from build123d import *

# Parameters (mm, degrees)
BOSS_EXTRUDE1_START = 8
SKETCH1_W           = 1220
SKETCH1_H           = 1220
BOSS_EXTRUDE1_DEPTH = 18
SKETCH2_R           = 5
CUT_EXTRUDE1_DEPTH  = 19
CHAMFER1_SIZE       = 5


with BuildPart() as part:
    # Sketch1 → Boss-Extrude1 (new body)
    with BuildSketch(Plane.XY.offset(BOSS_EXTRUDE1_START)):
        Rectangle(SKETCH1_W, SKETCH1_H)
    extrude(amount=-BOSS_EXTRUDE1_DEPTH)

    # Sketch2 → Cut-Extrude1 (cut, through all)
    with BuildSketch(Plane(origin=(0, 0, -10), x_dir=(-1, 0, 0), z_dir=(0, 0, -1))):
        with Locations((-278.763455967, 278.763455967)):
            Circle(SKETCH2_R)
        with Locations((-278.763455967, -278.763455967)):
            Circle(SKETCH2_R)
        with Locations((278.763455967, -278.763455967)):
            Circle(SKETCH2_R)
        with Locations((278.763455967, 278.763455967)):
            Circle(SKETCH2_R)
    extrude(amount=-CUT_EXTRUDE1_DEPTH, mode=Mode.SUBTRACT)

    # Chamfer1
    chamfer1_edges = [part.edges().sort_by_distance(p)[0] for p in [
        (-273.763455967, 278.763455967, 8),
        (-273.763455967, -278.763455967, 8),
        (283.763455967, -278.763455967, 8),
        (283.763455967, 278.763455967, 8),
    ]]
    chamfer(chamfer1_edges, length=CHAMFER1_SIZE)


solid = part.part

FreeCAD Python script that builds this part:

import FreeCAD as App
import Part
import Sketcher

V = App.Vector


def edges_at(feature, points):
    """Names of the edges that pass closest to the given points."""
    edges = feature.Shape.Edges
    near = lambda p: min(range(len(edges)), key=lambda i: edges[i].distToShape(Part.Vertex(*p))[0])
    return sorted({f"Edge{near(p) + 1}" for p in points})

doc = App.newDocument("Part")
body = doc.addObject("PartDesign::Body", "Body")

sketch1 = body.newObject("Sketcher::SketchObject", "Sketch")
sketch1.AttachmentSupport = (doc.getObject("XY_Plane"), [""])
sketch1.MapMode = "FlatFace"
sketch1.AttachmentOffset = App.Placement(V(0, 0, 8), App.Rotation())
sketch1.addGeometry([
    Part.LineSegment(V(-610, 610, 0), V(-610, -610, 0)),
    Part.LineSegment(V(-610, -610, 0), V(610, -610, 0)),
    Part.LineSegment(V(610, -610, 0), V(610, 610, 0)),
    Part.LineSegment(V(610, 610, 0), V(-610, 610, 0)),
], False)
sketch1.addConstraint([
    Sketcher.Constraint("Coincident", 0, 2, 1, 1),
    Sketcher.Constraint("Coincident", 1, 2, 2, 1),
    Sketcher.Constraint("Coincident", 2, 2, 3, 1),
    Sketcher.Constraint("Coincident", 3, 2, 0, 1),
    Sketcher.Constraint("Vertical", 0),
    Sketcher.Constraint("Horizontal", 1),
    Sketcher.Constraint("Vertical", 2),
    Sketcher.Constraint("Horizontal", 3),
    Sketcher.Constraint("Symmetric", 0, 2, 2, 2, -1, 1),
    Sketcher.Constraint("Equal", 3, 0),
    Sketcher.Constraint("DistanceX", 1, 1, 1, 2, 1220.0),
])
pad1 = body.newObject("PartDesign::Pad", "Pad")
pad1.Profile = sketch1
pad1.Length = 18
pad1.Reversed = True

sketch2 = body.newObject("Sketcher::SketchObject", "Sketch001")
sketch2.AttachmentSupport = (doc.getObject("XY_Plane"), [""])
sketch2.MapMode = "FlatFace"
sketch2.AttachmentOffset = App.Placement(V(0, 0, -10), App.Rotation())
sketch2.addGeometry([
    Part.Circle(V(279, 279, 0), V(0, 0, 1), 5),
    Part.Circle(V(279, -279, 0), V(0, 0, 1), 5),
    Part.Circle(V(-279, -279, 0), V(0, 0, 1), 5),
    Part.Circle(V(-279, 279, 0), V(0, 0, 1), 5),
], False)
sketch2.addConstraint([
    Sketcher.Constraint("Equal", 0, 1),
    Sketcher.Constraint("Equal", 1, 2),
    Sketcher.Constraint("Equal", 2, 3),
    Sketcher.Constraint("Symmetric", 0, 3, 2, 3, -1, 1),
    Sketcher.Constraint("Symmetric", 1, 3, 3, 3, -1, 1),
    Sketcher.Constraint("Symmetric", 1, 3, 2, 3, -2),
    Sketcher.Constraint("Diameter", 0, 10.0),
    Sketcher.Constraint("DistanceY", 1, 3, 0, 3, 557.526912),
    Sketcher.Constraint("DistanceX", 2, 3, 1, 3, 557.526912),
])
pocket1 = body.newObject("PartDesign::Pocket", "Pocket")
pocket1.Profile = sketch2
pocket1.Type = "ThroughAll"
pocket1.Reversed = True
doc.recompute()

chamfer = body.newObject("PartDesign::Chamfer", "Chamfer")
chamfer.Base = (pocket1, edges_at(pocket1, [
    (-273.763, 278.763, 8),
    (-273.763, -278.763, 8),
    (283.763, -278.763, 8),
    (283.763, 278.763, 8),
]))
chamfer.Size = 5

doc.recompute()
